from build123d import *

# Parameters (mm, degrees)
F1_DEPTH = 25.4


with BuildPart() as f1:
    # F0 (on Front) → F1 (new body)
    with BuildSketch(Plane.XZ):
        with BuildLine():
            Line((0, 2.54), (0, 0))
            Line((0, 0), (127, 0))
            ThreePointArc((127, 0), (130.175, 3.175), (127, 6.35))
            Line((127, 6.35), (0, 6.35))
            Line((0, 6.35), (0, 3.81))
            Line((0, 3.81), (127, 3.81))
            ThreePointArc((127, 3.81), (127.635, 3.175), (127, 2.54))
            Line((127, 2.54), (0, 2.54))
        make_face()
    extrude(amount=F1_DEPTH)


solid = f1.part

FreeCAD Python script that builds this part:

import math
import FreeCAD as App
import Part
import Sketcher
from FreeCAD import Vector
Q = App.Units.Quantity

doc = App.newDocument("Part")
body = doc.addObject("PartDesign::Body", "Body")

# Sketch on XZ plane
sketch1 = body.newObject("Sketcher::SketchObject", "Sketch")
sketch1.AttachmentSupport = (doc.getObject("XZ_Plane"), [""])
sketch1.MapMode = "FlatFace"
sketch1.addGeometry([
    Part.LineSegment(Vector(0, 2.54, 0), Vector(0, 0, 0)),  # 0
    Part.LineSegment(Vector(0, 0, 0), Vector(127, 0, 0)),  # 1
    Part.ArcOfCircle(Part.Circle(Vector(127, 3.175, 0), Vector(0, 0, 1), 3.175), math.radians(-90), math.radians(90)),  # 2
    Part.LineSegment(Vector(127, 6.35, 0), Vector(0, 6.35, 0)),  # 3
    Part.LineSegment(Vector(0, 6.35, 0), Vector(0, 3.81, 0)),  # 4
    Part.LineSegment(Vector(0, 3.81, 0), Vector(127, 3.81, 0)),  # 5
    Part.ArcOfCircle(Part.Circle(Vector(127, 3.175, 0), Vector(0, 0, 1), 0.635), math.radians(-90), math.radians(90)),  # 6
    Part.LineSegment(Vector(127, 2.54, 0), Vector(0, 2.54, 0)),  # 7
], False)
sketch1.addConstraint([
    Sketcher.Constraint("Coincident", 0, 2, 1, 1),
    Sketcher.Constraint("Tangent", 1, 2, 2, 1),
    Sketcher.Constraint("Tangent", 2, 2, 3, 1),
    Sketcher.Constraint("Coincident", 3, 2, 4, 1),
    Sketcher.Constraint("Coincident", 4, 2, 5, 1),
    Sketcher.Constraint("Tangent", 5, 2, 6, 2),
    Sketcher.Constraint("Tangent", 6, 1, 7, 1),
    Sketcher.Constraint("Coincident", 7, 2, 0, 1),
    Sketcher.Constraint("Vertical", 0),
    Sketcher.Constraint("Horizontal", 1),
    Sketcher.Constraint("Horizontal", 3),
    Sketcher.Constraint("Vertical", 4),
    Sketcher.Constraint("Horizontal", 5),
    Sketcher.Constraint("Horizontal", 7),
    Sketcher.Constraint("Coincident", 0, 2, -1, 1),
    Sketcher.Constraint("Coincident", 6, 3, 2, 3),
    Sketcher.Constraint("PointOnObject", 3, 2, -2),
    Sketcher.Constraint("DistanceX", 1, 1, 1, 2, Q("5 in")),
    Sketcher.Constraint("DistanceY", 0, 2, 0, 1, Q("0.1 in")),
    Sketcher.Constraint("Radius", 2, Q("0.125 in")),
])
pad1 = body.newObject("PartDesign::Pad", "Pad")
pad1.Profile = sketch1
pad1.Length = Q("1 in")

doc.recompute()
